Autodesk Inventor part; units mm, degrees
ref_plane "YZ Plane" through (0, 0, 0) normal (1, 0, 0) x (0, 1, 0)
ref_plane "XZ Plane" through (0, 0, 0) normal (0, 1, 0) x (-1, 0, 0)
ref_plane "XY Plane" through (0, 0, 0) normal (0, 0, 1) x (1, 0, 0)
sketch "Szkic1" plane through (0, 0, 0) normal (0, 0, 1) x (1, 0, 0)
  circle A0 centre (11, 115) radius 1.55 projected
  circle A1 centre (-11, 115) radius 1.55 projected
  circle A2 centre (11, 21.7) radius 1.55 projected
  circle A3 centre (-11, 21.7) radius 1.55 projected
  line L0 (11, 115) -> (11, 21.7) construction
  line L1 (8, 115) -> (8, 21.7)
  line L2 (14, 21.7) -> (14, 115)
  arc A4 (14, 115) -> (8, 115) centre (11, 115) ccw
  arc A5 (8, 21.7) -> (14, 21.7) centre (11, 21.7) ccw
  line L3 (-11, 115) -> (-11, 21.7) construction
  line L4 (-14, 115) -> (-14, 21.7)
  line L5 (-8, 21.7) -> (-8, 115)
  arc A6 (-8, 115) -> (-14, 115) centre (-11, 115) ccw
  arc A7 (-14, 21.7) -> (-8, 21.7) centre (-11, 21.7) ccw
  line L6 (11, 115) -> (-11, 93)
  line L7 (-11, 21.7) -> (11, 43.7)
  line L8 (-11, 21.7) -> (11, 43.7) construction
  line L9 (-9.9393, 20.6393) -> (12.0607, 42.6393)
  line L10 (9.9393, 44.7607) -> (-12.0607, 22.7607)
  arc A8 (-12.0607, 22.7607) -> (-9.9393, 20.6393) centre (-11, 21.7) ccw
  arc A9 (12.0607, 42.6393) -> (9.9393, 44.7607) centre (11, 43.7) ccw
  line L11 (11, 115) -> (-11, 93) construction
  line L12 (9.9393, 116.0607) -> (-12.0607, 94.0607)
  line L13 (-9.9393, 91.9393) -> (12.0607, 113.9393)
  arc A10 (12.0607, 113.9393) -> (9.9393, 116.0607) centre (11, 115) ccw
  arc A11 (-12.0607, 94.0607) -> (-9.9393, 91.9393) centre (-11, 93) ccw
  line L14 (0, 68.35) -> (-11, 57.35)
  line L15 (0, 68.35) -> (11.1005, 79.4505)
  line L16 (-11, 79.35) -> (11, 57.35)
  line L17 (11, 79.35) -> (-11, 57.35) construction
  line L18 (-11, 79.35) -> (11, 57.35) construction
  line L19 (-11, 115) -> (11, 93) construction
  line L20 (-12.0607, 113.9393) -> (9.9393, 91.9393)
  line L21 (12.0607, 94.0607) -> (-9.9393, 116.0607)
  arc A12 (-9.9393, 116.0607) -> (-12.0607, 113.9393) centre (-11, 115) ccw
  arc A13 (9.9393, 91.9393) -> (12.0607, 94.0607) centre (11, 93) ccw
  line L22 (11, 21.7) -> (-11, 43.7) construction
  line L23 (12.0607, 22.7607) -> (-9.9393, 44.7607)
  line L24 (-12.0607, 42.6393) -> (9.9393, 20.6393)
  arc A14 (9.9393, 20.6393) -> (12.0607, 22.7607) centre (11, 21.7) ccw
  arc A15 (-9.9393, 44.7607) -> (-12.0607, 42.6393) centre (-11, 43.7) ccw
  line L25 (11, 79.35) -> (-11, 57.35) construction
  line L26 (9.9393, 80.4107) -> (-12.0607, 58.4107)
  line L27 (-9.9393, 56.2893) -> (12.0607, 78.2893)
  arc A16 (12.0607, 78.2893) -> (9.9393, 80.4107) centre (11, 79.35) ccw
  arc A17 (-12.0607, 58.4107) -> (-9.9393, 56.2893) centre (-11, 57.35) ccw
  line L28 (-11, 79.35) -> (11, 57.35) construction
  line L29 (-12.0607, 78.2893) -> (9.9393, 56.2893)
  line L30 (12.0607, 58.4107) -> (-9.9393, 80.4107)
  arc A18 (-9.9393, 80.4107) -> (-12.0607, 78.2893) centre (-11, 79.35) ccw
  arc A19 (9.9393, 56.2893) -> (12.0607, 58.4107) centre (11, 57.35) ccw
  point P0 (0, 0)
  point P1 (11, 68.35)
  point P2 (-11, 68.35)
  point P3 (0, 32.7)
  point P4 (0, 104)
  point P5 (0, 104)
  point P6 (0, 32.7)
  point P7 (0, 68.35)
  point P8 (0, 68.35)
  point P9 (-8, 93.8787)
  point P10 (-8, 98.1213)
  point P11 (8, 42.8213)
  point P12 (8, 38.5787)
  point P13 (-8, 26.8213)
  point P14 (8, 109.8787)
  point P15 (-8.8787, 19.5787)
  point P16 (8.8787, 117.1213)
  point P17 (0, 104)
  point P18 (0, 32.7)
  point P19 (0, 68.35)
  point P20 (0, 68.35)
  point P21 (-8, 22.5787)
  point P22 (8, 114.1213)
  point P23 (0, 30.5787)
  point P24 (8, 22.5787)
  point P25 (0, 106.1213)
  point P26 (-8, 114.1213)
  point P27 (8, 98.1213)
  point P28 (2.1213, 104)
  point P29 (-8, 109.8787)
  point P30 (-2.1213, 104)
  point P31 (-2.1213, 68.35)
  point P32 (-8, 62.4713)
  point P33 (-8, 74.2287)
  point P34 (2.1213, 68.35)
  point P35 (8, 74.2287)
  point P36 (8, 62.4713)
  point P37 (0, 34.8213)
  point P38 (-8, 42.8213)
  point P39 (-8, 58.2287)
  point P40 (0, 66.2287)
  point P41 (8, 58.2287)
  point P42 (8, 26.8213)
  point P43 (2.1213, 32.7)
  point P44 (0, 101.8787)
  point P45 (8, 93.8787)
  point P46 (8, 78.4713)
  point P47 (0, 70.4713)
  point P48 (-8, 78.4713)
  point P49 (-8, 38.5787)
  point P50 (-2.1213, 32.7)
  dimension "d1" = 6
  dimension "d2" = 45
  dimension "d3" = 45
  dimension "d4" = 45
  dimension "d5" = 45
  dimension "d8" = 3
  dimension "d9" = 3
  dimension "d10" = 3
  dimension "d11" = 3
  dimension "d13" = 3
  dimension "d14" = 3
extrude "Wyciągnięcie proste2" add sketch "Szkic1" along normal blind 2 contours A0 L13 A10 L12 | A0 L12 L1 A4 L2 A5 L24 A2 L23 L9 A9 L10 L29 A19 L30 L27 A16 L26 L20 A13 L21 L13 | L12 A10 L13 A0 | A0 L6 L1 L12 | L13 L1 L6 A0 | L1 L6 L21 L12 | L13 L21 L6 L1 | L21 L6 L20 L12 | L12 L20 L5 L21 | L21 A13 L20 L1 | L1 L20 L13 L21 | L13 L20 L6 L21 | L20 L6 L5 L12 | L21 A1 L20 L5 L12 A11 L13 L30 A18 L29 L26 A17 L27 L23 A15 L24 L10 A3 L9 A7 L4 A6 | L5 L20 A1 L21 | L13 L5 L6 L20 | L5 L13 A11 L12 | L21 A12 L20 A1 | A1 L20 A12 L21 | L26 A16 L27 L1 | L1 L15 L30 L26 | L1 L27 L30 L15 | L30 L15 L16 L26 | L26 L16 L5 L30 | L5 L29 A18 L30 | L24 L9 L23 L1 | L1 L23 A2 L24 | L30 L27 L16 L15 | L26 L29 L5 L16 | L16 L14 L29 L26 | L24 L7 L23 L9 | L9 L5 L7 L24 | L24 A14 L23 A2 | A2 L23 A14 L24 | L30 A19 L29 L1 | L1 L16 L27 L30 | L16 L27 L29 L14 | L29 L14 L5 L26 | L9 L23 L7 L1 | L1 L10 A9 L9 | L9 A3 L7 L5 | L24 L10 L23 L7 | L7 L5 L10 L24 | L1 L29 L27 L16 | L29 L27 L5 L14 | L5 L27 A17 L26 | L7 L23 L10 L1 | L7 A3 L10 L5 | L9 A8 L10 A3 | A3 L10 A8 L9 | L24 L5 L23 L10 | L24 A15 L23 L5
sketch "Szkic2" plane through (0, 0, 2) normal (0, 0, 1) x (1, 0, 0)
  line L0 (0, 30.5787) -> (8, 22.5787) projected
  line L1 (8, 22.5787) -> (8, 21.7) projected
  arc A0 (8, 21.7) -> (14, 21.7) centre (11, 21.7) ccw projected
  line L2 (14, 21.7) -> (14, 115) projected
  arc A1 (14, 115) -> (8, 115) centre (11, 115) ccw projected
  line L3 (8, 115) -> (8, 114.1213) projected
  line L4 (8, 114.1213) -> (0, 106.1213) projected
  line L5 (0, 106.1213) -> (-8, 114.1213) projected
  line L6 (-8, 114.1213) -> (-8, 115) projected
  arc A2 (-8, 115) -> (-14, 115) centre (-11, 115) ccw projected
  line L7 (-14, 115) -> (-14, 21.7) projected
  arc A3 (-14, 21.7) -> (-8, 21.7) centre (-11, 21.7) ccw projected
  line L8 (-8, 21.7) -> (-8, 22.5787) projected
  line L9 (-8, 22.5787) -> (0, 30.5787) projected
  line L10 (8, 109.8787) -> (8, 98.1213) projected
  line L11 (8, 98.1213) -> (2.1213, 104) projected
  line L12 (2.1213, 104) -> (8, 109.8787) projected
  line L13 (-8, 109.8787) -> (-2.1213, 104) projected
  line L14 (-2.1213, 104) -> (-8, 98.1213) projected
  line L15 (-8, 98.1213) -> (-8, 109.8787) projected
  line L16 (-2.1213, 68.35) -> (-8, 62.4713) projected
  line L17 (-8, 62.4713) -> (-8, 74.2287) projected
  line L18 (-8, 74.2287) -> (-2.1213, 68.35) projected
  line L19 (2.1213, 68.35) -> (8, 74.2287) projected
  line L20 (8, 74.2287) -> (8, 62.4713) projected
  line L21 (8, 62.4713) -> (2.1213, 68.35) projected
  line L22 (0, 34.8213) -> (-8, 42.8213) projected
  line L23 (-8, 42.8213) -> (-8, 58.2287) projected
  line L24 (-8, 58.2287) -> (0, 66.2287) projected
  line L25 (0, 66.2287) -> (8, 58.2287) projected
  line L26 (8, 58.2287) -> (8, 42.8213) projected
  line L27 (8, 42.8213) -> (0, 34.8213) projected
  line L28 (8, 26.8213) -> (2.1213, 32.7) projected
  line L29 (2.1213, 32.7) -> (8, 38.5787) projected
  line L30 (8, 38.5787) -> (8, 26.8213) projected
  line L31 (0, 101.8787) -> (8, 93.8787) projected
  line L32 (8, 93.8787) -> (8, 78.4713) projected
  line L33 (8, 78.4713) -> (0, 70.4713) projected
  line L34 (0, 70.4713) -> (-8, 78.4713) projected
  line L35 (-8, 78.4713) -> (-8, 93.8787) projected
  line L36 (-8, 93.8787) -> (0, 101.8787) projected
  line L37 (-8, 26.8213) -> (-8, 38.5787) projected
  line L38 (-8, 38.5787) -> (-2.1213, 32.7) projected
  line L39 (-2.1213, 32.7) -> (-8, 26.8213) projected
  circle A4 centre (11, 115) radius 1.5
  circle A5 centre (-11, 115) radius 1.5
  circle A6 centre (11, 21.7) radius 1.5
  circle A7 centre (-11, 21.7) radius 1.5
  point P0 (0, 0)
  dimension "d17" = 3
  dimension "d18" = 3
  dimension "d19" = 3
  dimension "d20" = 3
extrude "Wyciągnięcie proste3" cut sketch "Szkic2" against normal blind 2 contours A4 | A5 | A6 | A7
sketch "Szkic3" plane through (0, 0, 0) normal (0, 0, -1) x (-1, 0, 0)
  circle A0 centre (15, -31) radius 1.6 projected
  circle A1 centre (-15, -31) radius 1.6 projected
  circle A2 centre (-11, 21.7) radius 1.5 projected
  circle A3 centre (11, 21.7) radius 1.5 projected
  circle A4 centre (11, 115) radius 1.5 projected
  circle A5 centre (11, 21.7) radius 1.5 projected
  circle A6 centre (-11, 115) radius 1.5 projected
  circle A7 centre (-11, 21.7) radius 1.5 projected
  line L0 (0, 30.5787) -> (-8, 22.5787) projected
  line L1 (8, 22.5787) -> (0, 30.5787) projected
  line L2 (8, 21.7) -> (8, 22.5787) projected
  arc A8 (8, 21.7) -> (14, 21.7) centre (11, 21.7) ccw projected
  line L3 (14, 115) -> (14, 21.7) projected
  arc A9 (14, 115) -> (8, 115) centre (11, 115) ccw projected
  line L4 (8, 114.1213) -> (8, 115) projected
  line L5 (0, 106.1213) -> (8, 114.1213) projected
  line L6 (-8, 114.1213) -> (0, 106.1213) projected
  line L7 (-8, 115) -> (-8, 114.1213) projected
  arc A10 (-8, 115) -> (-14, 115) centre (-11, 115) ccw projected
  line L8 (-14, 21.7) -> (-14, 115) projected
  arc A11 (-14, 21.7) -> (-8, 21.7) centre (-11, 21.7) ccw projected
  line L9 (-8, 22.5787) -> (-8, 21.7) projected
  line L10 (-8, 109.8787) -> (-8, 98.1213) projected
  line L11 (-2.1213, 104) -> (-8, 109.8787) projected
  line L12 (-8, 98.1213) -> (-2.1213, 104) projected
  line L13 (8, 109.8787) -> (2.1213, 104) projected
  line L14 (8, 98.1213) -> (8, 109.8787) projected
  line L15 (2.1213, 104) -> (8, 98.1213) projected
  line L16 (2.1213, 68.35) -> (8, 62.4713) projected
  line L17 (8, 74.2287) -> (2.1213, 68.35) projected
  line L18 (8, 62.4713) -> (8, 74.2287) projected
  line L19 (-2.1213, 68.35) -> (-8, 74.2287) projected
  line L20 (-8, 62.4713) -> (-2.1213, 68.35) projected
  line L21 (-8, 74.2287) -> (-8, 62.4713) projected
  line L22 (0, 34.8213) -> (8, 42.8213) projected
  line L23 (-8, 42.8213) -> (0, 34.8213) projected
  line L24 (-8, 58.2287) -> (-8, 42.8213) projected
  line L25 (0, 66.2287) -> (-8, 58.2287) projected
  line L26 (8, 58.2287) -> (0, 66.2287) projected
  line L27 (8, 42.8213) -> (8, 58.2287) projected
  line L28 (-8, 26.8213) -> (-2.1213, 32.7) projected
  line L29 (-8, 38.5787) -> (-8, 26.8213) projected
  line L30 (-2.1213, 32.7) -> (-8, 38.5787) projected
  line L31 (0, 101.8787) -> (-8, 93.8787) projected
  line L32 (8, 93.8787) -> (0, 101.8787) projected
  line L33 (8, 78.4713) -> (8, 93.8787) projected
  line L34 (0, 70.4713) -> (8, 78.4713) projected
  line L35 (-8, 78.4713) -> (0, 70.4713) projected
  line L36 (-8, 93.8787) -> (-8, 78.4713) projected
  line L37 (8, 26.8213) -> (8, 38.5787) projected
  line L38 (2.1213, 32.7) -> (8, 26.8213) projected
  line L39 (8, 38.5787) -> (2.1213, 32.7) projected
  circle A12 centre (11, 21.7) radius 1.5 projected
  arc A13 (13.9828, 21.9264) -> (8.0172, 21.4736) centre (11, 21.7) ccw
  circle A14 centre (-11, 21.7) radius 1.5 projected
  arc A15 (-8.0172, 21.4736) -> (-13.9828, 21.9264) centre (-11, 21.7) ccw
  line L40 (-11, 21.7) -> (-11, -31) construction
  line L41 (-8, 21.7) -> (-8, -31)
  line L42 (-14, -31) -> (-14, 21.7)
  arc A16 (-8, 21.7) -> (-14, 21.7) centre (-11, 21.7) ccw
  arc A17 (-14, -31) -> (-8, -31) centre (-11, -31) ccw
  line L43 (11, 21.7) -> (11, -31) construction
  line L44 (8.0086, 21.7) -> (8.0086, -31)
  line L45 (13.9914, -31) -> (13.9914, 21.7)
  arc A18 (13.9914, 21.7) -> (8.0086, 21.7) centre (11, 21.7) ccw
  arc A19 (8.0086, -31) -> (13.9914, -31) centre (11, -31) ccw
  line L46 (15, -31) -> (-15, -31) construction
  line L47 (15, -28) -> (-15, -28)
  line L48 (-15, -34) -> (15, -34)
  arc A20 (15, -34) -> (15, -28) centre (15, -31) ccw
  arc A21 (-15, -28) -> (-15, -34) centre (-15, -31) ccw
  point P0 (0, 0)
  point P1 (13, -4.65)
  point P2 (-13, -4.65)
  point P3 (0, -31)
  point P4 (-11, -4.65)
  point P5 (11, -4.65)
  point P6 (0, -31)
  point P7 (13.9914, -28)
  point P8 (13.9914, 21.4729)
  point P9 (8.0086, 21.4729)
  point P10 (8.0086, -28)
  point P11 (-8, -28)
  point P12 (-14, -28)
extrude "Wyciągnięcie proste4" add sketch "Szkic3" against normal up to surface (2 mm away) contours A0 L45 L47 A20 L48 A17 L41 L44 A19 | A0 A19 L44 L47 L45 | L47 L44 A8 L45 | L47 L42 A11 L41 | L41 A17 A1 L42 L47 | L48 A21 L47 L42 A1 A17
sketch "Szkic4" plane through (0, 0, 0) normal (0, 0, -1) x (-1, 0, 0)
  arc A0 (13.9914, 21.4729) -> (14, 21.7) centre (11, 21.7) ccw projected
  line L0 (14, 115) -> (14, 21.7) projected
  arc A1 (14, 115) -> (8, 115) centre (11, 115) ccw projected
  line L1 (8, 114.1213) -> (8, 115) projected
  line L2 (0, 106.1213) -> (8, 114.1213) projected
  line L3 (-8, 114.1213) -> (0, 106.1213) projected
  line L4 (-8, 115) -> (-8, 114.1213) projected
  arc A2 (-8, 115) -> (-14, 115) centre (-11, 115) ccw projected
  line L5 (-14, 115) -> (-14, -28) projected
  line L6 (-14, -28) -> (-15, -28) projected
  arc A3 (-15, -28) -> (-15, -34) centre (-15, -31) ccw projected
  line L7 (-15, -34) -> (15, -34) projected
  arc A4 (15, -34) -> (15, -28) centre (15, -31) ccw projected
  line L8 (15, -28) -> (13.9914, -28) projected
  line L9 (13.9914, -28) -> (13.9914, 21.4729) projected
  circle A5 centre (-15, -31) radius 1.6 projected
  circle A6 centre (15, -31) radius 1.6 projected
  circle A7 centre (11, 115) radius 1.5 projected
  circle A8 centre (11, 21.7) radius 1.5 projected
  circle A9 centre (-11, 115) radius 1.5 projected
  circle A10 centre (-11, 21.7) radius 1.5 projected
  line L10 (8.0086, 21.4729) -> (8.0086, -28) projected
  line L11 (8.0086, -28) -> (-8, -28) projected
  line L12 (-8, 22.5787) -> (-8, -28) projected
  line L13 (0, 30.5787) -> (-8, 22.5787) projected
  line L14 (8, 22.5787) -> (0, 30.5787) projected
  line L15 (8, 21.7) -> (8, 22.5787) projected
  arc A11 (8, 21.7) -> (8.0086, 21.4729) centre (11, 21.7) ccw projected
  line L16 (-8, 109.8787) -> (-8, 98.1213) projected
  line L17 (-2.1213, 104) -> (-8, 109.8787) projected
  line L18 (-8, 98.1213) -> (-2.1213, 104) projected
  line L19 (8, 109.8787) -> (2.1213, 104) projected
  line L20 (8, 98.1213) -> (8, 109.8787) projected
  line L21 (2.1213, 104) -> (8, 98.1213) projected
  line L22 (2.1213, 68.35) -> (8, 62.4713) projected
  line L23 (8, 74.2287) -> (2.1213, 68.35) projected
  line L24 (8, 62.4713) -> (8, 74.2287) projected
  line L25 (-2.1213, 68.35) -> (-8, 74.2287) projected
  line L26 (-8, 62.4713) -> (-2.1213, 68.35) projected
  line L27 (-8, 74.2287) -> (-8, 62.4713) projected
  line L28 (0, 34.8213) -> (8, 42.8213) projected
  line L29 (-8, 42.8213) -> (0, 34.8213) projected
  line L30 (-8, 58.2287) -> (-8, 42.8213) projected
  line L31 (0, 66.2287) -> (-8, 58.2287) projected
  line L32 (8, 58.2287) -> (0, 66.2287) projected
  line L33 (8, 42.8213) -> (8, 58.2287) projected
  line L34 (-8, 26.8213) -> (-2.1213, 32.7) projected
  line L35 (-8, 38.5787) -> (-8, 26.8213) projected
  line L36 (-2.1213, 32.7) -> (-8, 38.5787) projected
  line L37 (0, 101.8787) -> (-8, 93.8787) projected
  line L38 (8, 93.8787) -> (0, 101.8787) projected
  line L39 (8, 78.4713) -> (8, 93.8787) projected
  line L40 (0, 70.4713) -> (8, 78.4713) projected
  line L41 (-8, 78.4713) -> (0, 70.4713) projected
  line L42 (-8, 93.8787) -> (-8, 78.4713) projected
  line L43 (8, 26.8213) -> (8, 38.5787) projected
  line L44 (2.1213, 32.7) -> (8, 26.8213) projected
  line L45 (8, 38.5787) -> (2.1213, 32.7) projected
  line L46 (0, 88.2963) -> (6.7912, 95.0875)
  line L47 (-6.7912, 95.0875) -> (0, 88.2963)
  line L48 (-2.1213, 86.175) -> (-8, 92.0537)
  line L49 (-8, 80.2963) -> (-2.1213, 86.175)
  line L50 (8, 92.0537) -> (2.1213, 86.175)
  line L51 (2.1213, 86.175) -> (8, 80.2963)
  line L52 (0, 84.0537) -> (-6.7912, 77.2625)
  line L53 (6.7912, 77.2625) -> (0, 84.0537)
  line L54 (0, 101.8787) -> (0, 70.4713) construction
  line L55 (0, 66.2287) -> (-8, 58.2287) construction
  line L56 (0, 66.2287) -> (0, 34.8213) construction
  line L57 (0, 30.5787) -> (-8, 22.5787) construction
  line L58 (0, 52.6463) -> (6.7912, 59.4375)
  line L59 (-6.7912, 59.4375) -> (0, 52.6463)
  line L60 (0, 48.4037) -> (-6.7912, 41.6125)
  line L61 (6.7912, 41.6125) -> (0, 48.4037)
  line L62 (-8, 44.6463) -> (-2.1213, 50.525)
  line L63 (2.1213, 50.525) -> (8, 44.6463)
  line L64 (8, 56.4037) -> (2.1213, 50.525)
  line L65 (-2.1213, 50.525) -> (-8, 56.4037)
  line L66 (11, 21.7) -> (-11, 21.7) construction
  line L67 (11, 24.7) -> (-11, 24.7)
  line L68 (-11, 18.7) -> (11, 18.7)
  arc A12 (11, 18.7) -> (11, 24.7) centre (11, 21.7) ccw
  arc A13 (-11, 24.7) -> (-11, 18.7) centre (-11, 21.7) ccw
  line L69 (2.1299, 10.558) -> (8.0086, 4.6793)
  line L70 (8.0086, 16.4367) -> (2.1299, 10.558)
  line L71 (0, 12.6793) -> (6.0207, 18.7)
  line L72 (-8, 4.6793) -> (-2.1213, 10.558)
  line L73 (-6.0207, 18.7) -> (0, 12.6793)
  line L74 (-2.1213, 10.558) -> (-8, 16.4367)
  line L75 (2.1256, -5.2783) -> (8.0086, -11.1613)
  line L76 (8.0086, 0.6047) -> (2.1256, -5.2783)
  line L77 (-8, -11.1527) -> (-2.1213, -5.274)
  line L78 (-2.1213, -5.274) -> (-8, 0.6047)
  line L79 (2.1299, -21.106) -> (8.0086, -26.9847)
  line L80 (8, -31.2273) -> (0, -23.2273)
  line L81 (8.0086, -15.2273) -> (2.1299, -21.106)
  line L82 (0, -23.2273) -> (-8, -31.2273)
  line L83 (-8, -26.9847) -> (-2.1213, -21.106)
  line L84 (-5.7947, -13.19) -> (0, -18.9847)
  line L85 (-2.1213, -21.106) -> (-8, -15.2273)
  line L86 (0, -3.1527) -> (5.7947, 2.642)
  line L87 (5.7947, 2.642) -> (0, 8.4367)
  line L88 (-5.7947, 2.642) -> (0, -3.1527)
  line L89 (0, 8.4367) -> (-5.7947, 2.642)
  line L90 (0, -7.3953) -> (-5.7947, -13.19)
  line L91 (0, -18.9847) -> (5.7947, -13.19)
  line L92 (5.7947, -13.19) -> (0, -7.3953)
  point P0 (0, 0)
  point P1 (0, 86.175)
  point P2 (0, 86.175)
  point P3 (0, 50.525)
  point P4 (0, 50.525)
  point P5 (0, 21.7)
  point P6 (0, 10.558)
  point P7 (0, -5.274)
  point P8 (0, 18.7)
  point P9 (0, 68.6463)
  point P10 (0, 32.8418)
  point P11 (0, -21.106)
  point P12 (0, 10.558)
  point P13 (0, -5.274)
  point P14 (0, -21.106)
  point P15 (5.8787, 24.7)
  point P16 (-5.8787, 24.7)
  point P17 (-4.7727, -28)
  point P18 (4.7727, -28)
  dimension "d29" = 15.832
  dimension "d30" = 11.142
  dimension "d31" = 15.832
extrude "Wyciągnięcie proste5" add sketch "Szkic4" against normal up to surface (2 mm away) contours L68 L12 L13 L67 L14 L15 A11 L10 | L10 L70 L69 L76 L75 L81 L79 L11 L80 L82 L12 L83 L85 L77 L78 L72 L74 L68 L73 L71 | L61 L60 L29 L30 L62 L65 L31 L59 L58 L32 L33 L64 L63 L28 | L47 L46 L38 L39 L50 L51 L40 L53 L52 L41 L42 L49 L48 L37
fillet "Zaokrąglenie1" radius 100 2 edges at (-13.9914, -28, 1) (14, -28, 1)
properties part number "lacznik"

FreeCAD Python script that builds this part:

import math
import FreeCAD as App
import Part
import Sketcher
from FreeCAD import Vector


def edges_at(feature, points):
    """Names of the edges that pass closest to the given points."""
    edges = feature.Shape.Edges
    near = lambda p: min(range(len(edges)), key=lambda i: edges[i].distToShape(Part.Vertex(*p))[0])
    return sorted({f"Edge{near(p) + 1}" for p in points})


def add_polygon(sketch, points):
    """Adds a closed chain of lines whose ends are joined by coincident constraints."""
    first, n = sketch.GeometryCount, len(points)
    for a, b in zip(points, points[1:] + points[:1]):
        sketch.addGeometry(Part.LineSegment(App.Vector(*a, 0), App.Vector(*b, 0)), False)
    for i in range(n):
        sketch.addConstraint(Sketcher.Constraint("Coincident", first + i, 2, first + (i + 1) % n, 1))

doc = App.newDocument("Part")
body = doc.addObject("PartDesign::Body", "Body")

# Sketch on XY plane
sketch1 = doc.addObject("Sketcher::SketchObject", "Sketch")
body.addObject(sketch1)
sketch1.AttachmentSupport = (doc.XY_Plane, [""])
sketch1.MapMode = "FlatFace"
sketch1.addGeometry(Part.LineSegment(Vector(8, 115, 0), Vector(8, 114.1, 0)), False)  # 0
sketch1.addGeometry(Part.LineSegment(Vector(8, 114.1, 0), Vector(0, 106.1, 0)), False)  # 1
sketch1.addGeometry(Part.LineSegment(Vector(0, 106.1, 0), Vector(-8, 114.1, 0)), False)  # 2
sketch1.addGeometry(Part.LineSegment(Vector(-8, 114.1, 0), Vector(-8, 115, 0)), False)  # 3
sketch1.addGeometry(Part.ArcOfCircle(Part.Circle(Vector(-11, 115, 0), Vector(0, 0, 1), 3), math.radians(0), math.radians(180)), False)  # 4
sketch1.addGeometry(Part.LineSegment(Vector(-14, 115, 0), Vector(-14, 21.7, 0)), False)  # 5
sketch1.addGeometry(Part.ArcOfCircle(Part.Circle(Vector(-11, 21.7, 0), Vector(0, 0, 1), 3), math.radians(180), math.radians(360)), False)  # 6
sketch1.addGeometry(Part.LineSegment(Vector(-8, 21.7, 0), Vector(-8, 22.6, 0)), False)  # 7
sketch1.addGeometry(Part.LineSegment(Vector(-8, 22.6, 0), Vector(0, 30.6, 0)), False)  # 8
sketch1.addGeometry(Part.LineSegment(Vector(0, 30.6, 0), Vector(8, 22.6, 0)), False)  # 9
sketch1.addGeometry(Part.LineSegment(Vector(8, 22.6, 0), Vector(8, 21.7, 0)), False)  # 10
sketch1.addGeometry(Part.ArcOfCircle(Part.Circle(Vector(11, 21.7, 0), Vector(0, 0, 1), 3), math.radians(180), math.radians(360)), False)  # 11
sketch1.addGeometry(Part.LineSegment(Vector(14, 21.7, 0), Vector(14, 115, 0)), False)  # 12
sketch1.addGeometry(Part.ArcOfCircle(Part.Circle(Vector(11, 115, 0), Vector(0, 0, 1), 3), math.radians(0), math.radians(180)), False)  # 13
add_polygon(sketch1, [(8, 38.6), (8, 26.8), (2.1, 32.7)])  # lines 14-16
add_polygon(sketch1, [(8, 58.2), (8, 42.8), (0, 34.8), (-8, 42.8), (-8, 58.2), (0, 66.2)])  # lines 17-22
add_polygon(sketch1, [(8, 74.2), (8, 62.5), (2.1, 68.3)])  # lines 23-25
add_polygon(sketch1, [(8, 93.9), (8, 78.5), (0, 70.5), (-8, 78.5), (-8, 93.9), (0, 101.9)])  # lines 26-31
add_polygon(sketch1, [(8, 109.9), (8, 98.1), (2.1, 104)])  # lines 32-34
add_polygon(sketch1, [(-8, 109.9), (-2.1, 104), (-8, 98.1)])  # lines 35-37
add_polygon(sketch1, [(-2.1, 32.7), (-8, 26.8), (-8, 38.6)])  # lines 38-40
add_polygon(sketch1, [(-2.1, 68.3), (-8, 62.5), (-8, 74.2)])  # lines 41-43
sketch1.addConstraint([
    Sketcher.Constraint("Coincident", 0, 2, 1, 1),
    Sketcher.Constraint("Coincident", 1, 2, 2, 1),
    Sketcher.Constraint("Coincident", 2, 2, 3, 1),
    Sketcher.Constraint("Tangent", 3, 2, 4, 1),
    Sketcher.Constraint("Tangent", 4, 2, 5, 1),
    Sketcher.Constraint("Tangent", 5, 2, 6, 1),
    Sketcher.Constraint("Tangent", 6, 2, 7, 1),
    Sketcher.Constraint("Coincident", 7, 2, 8, 1),
    Sketcher.Constraint("Coincident", 8, 2, 9, 1),
    Sketcher.Constraint("Coincident", 9, 2, 10, 1),
    Sketcher.Constraint("Tangent", 10, 2, 11, 1),
    Sketcher.Constraint("Tangent", 11, 2, 12, 1),
    Sketcher.Constraint("Tangent", 12, 2, 13, 1),
    Sketcher.Constraint("Tangent", 13, 2, 0, 1),
    Sketcher.Constraint("Vertical", 0),
    Sketcher.Constraint("Vertical", 3),
    Sketcher.Constraint("Vertical", 5),
    Sketcher.Constraint("Vertical", 7),
    Sketcher.Constraint("Vertical", 10),
    Sketcher.Constraint("Vertical", 12),
    Sketcher.Constraint("Vertical", 14),
    Sketcher.Constraint("Vertical", 17),
    Sketcher.Constraint("Vertical", 20),
    Sketcher.Constraint("Vertical", 23),
    Sketcher.Constraint("Vertical", 26),
    Sketcher.Constraint("Vertical", 29),
    Sketcher.Constraint("Vertical", 32),
    Sketcher.Constraint("Vertical", 37),
    Sketcher.Constraint("Vertical", 39),
    Sketcher.Constraint("Vertical", 42),
    Sketcher.Constraint("Equal", 4, 6),
    Sketcher.Constraint("Equal", 6, 11),
    Sketcher.Constraint("Equal", 11, 13),
    Sketcher.Constraint("Symmetric", 6, 3, 11, 3, -2),
    Sketcher.Constraint("Symmetric", 17, 2, 19, 2, -2),
    Sketcher.Constraint("Symmetric", 26, 2, 28, 2, -2),
    Sketcher.Constraint("Symmetric", 33, 2, 35, 2, -2),
    Sketcher.Constraint("Symmetric", 32, 2, 36, 2, -2),
    Sketcher.Constraint("Symmetric", 14, 2, 38, 2, -2),
    Sketcher.Constraint("Symmetric", 15, 2, 40, 2, -2),
    Sketcher.Constraint("Symmetric", 23, 2, 41, 2, -2),
    Sketcher.Constraint("Symmetric", 24, 2, 43, 2, -2),
    Sketcher.Constraint("PointOnObject", 1, 2, -2),
    Sketcher.Constraint("PointOnObject", 8, 2, -2),
    Sketcher.Constraint("PointOnObject", 18, 2, -2),
    Sketcher.Constraint("PointOnObject", 21, 2, -2),
    Sketcher.Constraint("PointOnObject", 27, 2, -2),
    Sketcher.Constraint("PointOnObject", 30, 2, -2),
    Sketcher.Constraint("Perpendicular", 1, 2),
    Sketcher.Constraint("Perpendicular", 2, 8),
    Sketcher.Constraint("Perpendicular", 8, 9),
    Sketcher.Constraint("Parallel", 9, 15),
    Sketcher.Constraint("Perpendicular", 15, 16),
    Sketcher.Constraint("Parallel", 16, 18),
    Sketcher.Constraint("Perpendicular", 18, 19),
    Sketcher.Constraint("Perpendicular", 19, 21),
    Sketcher.Constraint("Perpendicular", 21, 22),
    Sketcher.Constraint("Parallel", 22, 24),
    Sketcher.Constraint("Perpendicular", 24, 25),
    Sketcher.Constraint("Parallel", 25, 27),
    Sketcher.Constraint("Perpendicular", 28, 30),
    Sketcher.Constraint("Perpendicular", 30, 31),
    Sketcher.Constraint("Parallel", 31, 33),
    Sketcher.Constraint("Perpendicular", 33, 34),
    Sketcher.Constraint("Perpendicular", 34, 35),
    Sketcher.Constraint("Perpendicular", 38, 40),
    Sketcher.Constraint("Perpendicular", 41, 43),
    Sketcher.Constraint("Horizontal", 4, 3, 13, 3),
    Sketcher.Constraint("Vertical", 13, 2, 14, 2),
    Sketcher.Constraint("Vertical", 16, 2, 17, 2),
    Sketcher.Constraint("Vertical", 22, 2, 23, 2),
    Sketcher.Constraint("Vertical", 15, 2, 24, 2),
    Sketcher.Constraint("Vertical", 25, 2, 26, 2),
    Sketcher.Constraint("Vertical", 31, 2, 32, 2),
    Sketcher.Constraint("Vertical", 24, 2, 33, 2),
    Sketcher.Constraint("Equal", 3, 7),
    Sketcher.Constraint("Equal", 20, 26),
    Sketcher.Constraint("Radius", 4, 3.0),
    Sketcher.Constraint("DistanceY", 5, 2, 5, 1, 93.3),
    Sketcher.Constraint("DistanceX", 4, 3, -1, 1, 11.0),
    Sketcher.Constraint("DistanceY", -1, 1, 4, 3, 115.0),
    Sketcher.Constraint("DistanceY", -1, 1, 33, 2, 104.0),
    Sketcher.Constraint("DistanceY", 10, 2, 15, 2, 11.0),
    Sketcher.Constraint("DistanceY", 8, 2, 16, 2, 8.0),
    Sketcher.Constraint("DistanceY", 14, 2, 17, 2, 16.0),
    Sketcher.Constraint("DistanceY", 21, 2, 25, 2, 8.0),
    Sketcher.Constraint("DistanceY", 23, 2, 26, 2, 16.0),
    Sketcher.Constraint("DistanceY", -1, 1, 24, 2, 68.35),
    Sketcher.Constraint("DistanceY", 0, 2, 0, 1, 0.8786),
])
pad1 = doc.addObject("PartDesign::Pad", "Pad")
body.addObject(pad1)
pad1.Profile = sketch1
pad1.Length = 2

# Sketch on XY plane
sketch2 = doc.addObject("Sketcher::SketchObject", "Sketch001")
body.addObject(sketch2)
sketch2.AttachmentSupport = (doc.XY_Plane, [""])
sketch2.MapMode = "FlatFace"
sketch2.AttachmentOffset = App.Placement(Vector(0, 0, 2), App.Rotation())
sketch2.addGeometry([
    Part.Circle(Vector(11, 115, 0), Vector(0, 0, 1), 1.5),
    Part.Circle(Vector(-11, 115, 0), Vector(0, 0, 1), 1.5),
    Part.Circle(Vector(11, 21.7, 0), Vector(0, 0, 1), 1.5),
    Part.Circle(Vector(-11, 21.7, 0), Vector(0, 0, 1), 1.5),
], False)
sketch2.addConstraint([
    Sketcher.Constraint("Equal", 0, 1),
    Sketcher.Constraint("Equal", 1, 2),
    Sketcher.Constraint("Equal", 2, 3),
    Sketcher.Constraint("Symmetric", 0, 3, 1, 3, -2),
    Sketcher.Constraint("Symmetric", 2, 3, 3, 3, -2),
    Sketcher.Constraint("Vertical", 0, 3, 2, 3),
    Sketcher.Constraint("Diameter", 0, 3.0),
    Sketcher.Constraint("DistanceX", -1, 1, 0, 3, 11.0),
    Sketcher.Constraint("DistanceY", -1, 1, 0, 3, 115.0),
    Sketcher.Constraint("DistanceY", -1, 1, 2, 3, 21.7),
])
pocket1 = doc.addObject("PartDesign::Pocket", "Pocket")
body.addObject(pocket1)
pocket1.Profile = sketch2
pocket1.Length = 2

# Sketch on XY plane
sketch3 = doc.addObject("Sketcher::SketchObject", "Sketch002")
body.addObject(sketch3)
sketch3.AttachmentSupport = (doc.XY_Plane, [""])
sketch3.MapMode = "FlatFace"
sketch3.addGeometry([
    Part.LineSegment(Vector(-15, -28, 0), Vector(-14, -28, 0)),  # 0
    Part.LineSegment(Vector(-14, -28, 0), Vector(-14, 21.5, 0)),  # 1
    Part.ArcOfCircle(Part.Circle(Vector(-11, 21.7, 0), Vector(0, 0, 1), 3), math.radians(-176), math.radians(-4)),  # 2
    Part.LineSegment(Vector(-8, 21.5, 0), Vector(-8, -28, 0)),  # 3
    Part.LineSegment(Vector(-8, -28, 0), Vector(8, -28, 0)),  # 4
    Part.LineSegment(Vector(8, -28, 0), Vector(8, 21.7, 0)),  # 5
    Part.ArcOfCircle(Part.Circle(Vector(11, 21.7, 0), Vector(0, 0, 1), 3), math.radians(180), math.radians(360)),  # 6
    Part.LineSegment(Vector(14, 21.7, 0), Vector(14, -28, 0)),  # 7
    Part.LineSegment(Vector(14, -28, 0), Vector(15, -28, 0)),  # 8
    Part.ArcOfCircle(Part.Circle(Vector(15, -31, 0), Vector(0, 0, 1), 3), math.radians(-90), math.radians(90)),  # 9
    Part.LineSegment(Vector(15, -34, 0), Vector(-15, -34, 0)),  # 10
    Part.ArcOfCircle(Part.Circle(Vector(-15, -31, 0), Vector(0, 0, 1), 3), math.radians(90), math.radians(270)),  # 11
    Part.Circle(Vector(-15, -31, 0), Vector(0, 0, 1), 1.6),  # 12
    Part.Circle(Vector(15, -31, 0), Vector(0, 0, 1), 1.6),  # 13
], False)
sketch3.addConstraint([
    Sketcher.Constraint("Coincident", 0, 2, 1, 1),
    Sketcher.Constraint("Coincident", 1, 2, 2, 1),
    Sketcher.Constraint("Coincident", 2, 2, 3, 1),
    Sketcher.Constraint("Coincident", 3, 2, 4, 1),
    Sketcher.Constraint("Coincident", 4, 2, 5, 1),
    Sketcher.Constraint("Tangent", 5, 2, 6, 1),
    Sketcher.Constraint("Tangent", 6, 2, 7, 1),
    Sketcher.Constraint("Coincident", 7, 2, 8, 1),
    Sketcher.Constraint("Tangent", 8, 2, 9, 2),
    Sketcher.Constraint("Tangent", 9, 1, 10, 1),
    Sketcher.Constraint("Tangent", 10, 2, 11, 2),
    Sketcher.Constraint("Tangent", 11, 1, 0, 1),
    Sketcher.Constraint("Horizontal", 0),
    Sketcher.Constraint("Vertical", 1),
    Sketcher.Constraint("Vertical", 3),
    Sketcher.Constraint("Horizontal", 4),
    Sketcher.Constraint("Vertical", 5),
    Sketcher.Constraint("Vertical", 7),
    Sketcher.Constraint("Horizontal", 8),
    Sketcher.Constraint("Horizontal", 10),
    Sketcher.Constraint("Coincident", 12, 3, 11, 3),
    Sketcher.Constraint("Coincident", 13, 3, 9, 3),
    Sketcher.Constraint("Equal", 2, 6),
    Sketcher.Constraint("Equal", 6, 9),
    Sketcher.Constraint("Equal", 9, 11),
    Sketcher.Constraint("Equal", 12, 13),
    Sketcher.Constraint("Symmetric", 2, 3, 6, 3, -2),
    Sketcher.Constraint("Horizontal", 1, 2, 2, 2),
    Sketcher.Constraint("Horizontal", 0, 2, 3, 2),
    Sketcher.Constraint("Radius", 2, 3.0),
    Sketcher.Constraint("Diameter", 12, 3.2),
    Sketcher.Constraint("DistanceX", 8, 1, 8, 2, 1.0),
    Sketcher.Constraint("DistanceX", 10, 2, 10, 1, 30.0),
    Sketcher.Constraint("DistanceY", 5, 1, 5, 2, 49.7),
    Sketcher.Constraint("DistanceX", 2, 3, -1, 1, 11.0),
    Sketcher.Constraint("DistanceY", 9, 3, -1, 1, 31.0),
    Sketcher.Constraint("DistanceY", 1, 1, 1, 2, 49.473),
])
pad2 = doc.addObject("PartDesign::Pad", "Pad001")
body.addObject(pad2)
pad2.Profile = sketch3
pad2.Length = 2

# Sketch on XY plane
sketch4 = doc.addObject("Sketcher::SketchObject", "Sketch003")
body.addObject(sketch4)
sketch4.AttachmentSupport = (doc.XY_Plane, [""])
sketch4.MapMode = "FlatFace"
sketch4.addGeometry(Part.LineSegment(Vector(8, 22.58, 0), Vector(8, 16.44, 0)), False)  # 0
sketch4.addGeometry(Part.LineSegment(Vector(8, 16.44, 0), Vector(2.12, 10.56, 0)), False)  # 1
sketch4.addGeometry(Part.LineSegment(Vector(2.12, 10.56, 0), Vector(8, 4.68, 0)), False)  # 2
sketch4.addGeometry(Part.LineSegment(Vector(8, 4.68, 0), Vector(8, 0.6, 0)), False)  # 3
sketch4.addGeometry(Part.LineSegment(Vector(8, 0.6, 0), Vector(2.12, -5.27, 0)), False)  # 4
sketch4.addGeometry(Part.LineSegment(Vector(2.12, -5.27, 0), Vector(8, -11.15, 0)), False)  # 5
sketch4.addGeometry(Part.LineSegment(Vector(8, -11.15, 0), Vector(8, -15.23, 0)), False)  # 6
sketch4.addGeometry(Part.LineSegment(Vector(8, -15.23, 0), Vector(2.12, -21.11, 0)), False)  # 7
sketch4.addGeometry(Part.LineSegment(Vector(2.12, -21.11, 0), Vector(8, -26.98, 0)), False)  # 8
sketch4.addGeometry(Part.LineSegment(Vector(8, -26.98, 0), Vector(8, -28, 0)), False)  # 9
sketch4.addGeometry(Part.LineSegment(Vector(8, -28, 0), Vector(4.77, -28, 0)), False)  # 10
sketch4.addGeometry(Part.LineSegment(Vector(4.77, -28, 0), Vector(0, -23.23, 0)), False)  # 11
sketch4.addGeometry(Part.LineSegment(Vector(0, -23.23, 0), Vector(-4.77, -28, 0)), False)  # 12
sketch4.addGeometry(Part.LineSegment(Vector(-4.77, -28, 0), Vector(-8.01, -28, 0)), False)  # 13
sketch4.addGeometry(Part.LineSegment(Vector(-8.01, -28, 0), Vector(-8.01, -26.98, 0)), False)  # 14
sketch4.addGeometry(Part.LineSegment(Vector(-8.01, -26.98, 0), Vector(-2.13, -21.11, 0)), False)  # 15
sketch4.addGeometry(Part.LineSegment(Vector(-2.13, -21.11, 0), Vector(-8.01, -15.23, 0)), False)  # 16
sketch4.addGeometry(Part.LineSegment(Vector(-8.01, -15.23, 0), Vector(-8.01, -11.16, 0)), False)  # 17
sketch4.addGeometry(Part.LineSegment(Vector(-8.01, -11.16, 0), Vector(-2.13, -5.28, 0)), False)  # 18
sketch4.addGeometry(Part.LineSegment(Vector(-2.13, -5.28, 0), Vector(-8.01, 0.6, 0)), False)  # 19
sketch4.addGeometry(Part.LineSegment(Vector(-8.01, 0.6, 0), Vector(-8.01, 4.68, 0)), False)  # 20
sketch4.addGeometry(Part.LineSegment(Vector(-8.01, 4.68, 0), Vector(-2.13, 10.56, 0)), False)  # 21
sketch4.addGeometry(Part.LineSegment(Vector(-2.13, 10.56, 0), Vector(-8.01, 16.44, 0)), False)  # 22
sketch4.addGeometry(Part.LineSegment(Vector(-8.01, 16.44, 0), Vector(-8.01, 21.47, 0)), False)  # 23
sketch4.addGeometry(Part.ArcOfCircle(Part.Circle(Vector(-11.01, 21.7, 0), Vector(0, 0, 1), 3.01), math.radians(-4.34), math.radians(0)), False)  # 24
sketch4.addGeometry(Part.LineSegment(Vector(-8, 21.7, 0), Vector(-8, 22.58, 0)), False)  # 25
sketch4.addGeometry(Part.LineSegment(Vector(-8, 22.58, 0), Vector(-5.88, 24.7, 0)), False)  # 26
sketch4.addGeometry(Part.LineSegment(Vector(-5.88, 24.7, 0), Vector(5.88, 24.7, 0)), False)  # 27
sketch4.addGeometry(Part.LineSegment(Vector(5.88, 24.7, 0), Vector(8, 22.58, 0)), False)  # 28
add_polygon(sketch4, [(6.02, 18.7), (-6.02, 18.7), (0, 12.68)])  # lines 29-31
add_polygon(sketch4, [(5.79, 2.64), (0, 8.44), (-5.79, 2.64), (0, -3.15)])  # lines 32-35
add_polygon(sketch4, [(0, -18.98), (5.79, -13.19), (0, -7.4), (-5.79, -13.19)])  # lines 36-39
add_polygon(sketch4, [(0, 48.4), (-6.79, 41.61), (-8, 42.82), (-8, 44.65), (-2.12, 50.52), (-8, 56.4), (-8, 58.23), (-6.79, 59.44), (0, 52.65), (6.79, 59.44), (8, 58.23), (8, 56.4), (2.12, 50.52), (8, 44.65), (8, 42.82), (6.79, 41.61)])  # lines 40-55
add_polygon(sketch4, [(0, 88.3), (6.79, 95.09), (8, 93.88), (8, 92.05), (2.12, 86.17), (8, 80.3), (8, 78.47), (6.79, 77.26), (0, 84.05), (-6.79, 77.26), (-8, 78.47), (-8, 80.3), (-2.12, 86.17), (-8, 92.05), (-8, 93.88), (-6.79, 95.09)])  # lines 56-71
sketch4.addConstraint([
    Sketcher.Constraint("Coincident", 0, 2, 1, 1),
    Sketcher.Constraint("Coincident", 1, 2, 2, 1),
    Sketcher.Constraint("Coincident", 2, 2, 3, 1),
    Sketcher.Constraint("Coincident", 3, 2, 4, 1),
    Sketcher.Constraint("Coincident", 4, 2, 5, 1),
    Sketcher.Constraint("Coincident", 5, 2, 6, 1),
    Sketcher.Constraint("Coincident", 6, 2, 7, 1),
    Sketcher.Constraint("Coincident", 7, 2, 8, 1),
    Sketcher.Constraint("Coincident", 8, 2, 9, 1),
    Sketcher.Constraint("Coincident", 9, 2, 10, 1),
    Sketcher.Constraint("Coincident", 10, 2, 11, 1),
    Sketcher.Constraint("Coincident", 11, 2, 12, 1),
    Sketcher.Constraint("Coincident", 12, 2, 13, 1),
    Sketcher.Constraint("Coincident", 13, 2, 14, 1),
    Sketcher.Constraint("Coincident", 14, 2, 15, 1),
    Sketcher.Constraint("Coincident", 15, 2, 16, 1),
    Sketcher.Constraint("Coincident", 16, 2, 17, 1),
    Sketcher.Constraint("Coincident", 17, 2, 18, 1),
    Sketcher.Constraint("Coincident", 18, 2, 19, 1),
    Sketcher.Constraint("Coincident", 19, 2, 20, 1),
    Sketcher.Constraint("Coincident", 20, 2, 21, 1),
    Sketcher.Constraint("Coincident", 21, 2, 22, 1),
    Sketcher.Constraint("Coincident", 22, 2, 23, 1),
    Sketcher.Constraint("Coincident", 23, 2, 24, 1),
    Sketcher.Constraint("Tangent", 24, 2, 25, 1),
    Sketcher.Constraint("Coincident", 25, 2, 26, 1),
    Sketcher.Constraint("Coincident", 26, 2, 27, 1),
    Sketcher.Constraint("Coincident", 27, 2, 28, 1),
    Sketcher.Constraint("Coincident", 28, 2, 0, 1),
    Sketcher.Constraint("Vertical", 0),
    Sketcher.Constraint("Vertical", 3),
    Sketcher.Constraint("Vertical", 6),
    Sketcher.Constraint("Vertical", 9),
    Sketcher.Constraint("Horizontal", 10),
    Sketcher.Constraint("Horizontal", 13),
    Sketcher.Constraint("Vertical", 14),
    Sketcher.Constraint("Vertical", 17),
    Sketcher.Constraint("Vertical", 20),
    Sketcher.Constraint("Vertical", 23),
    Sketcher.Constraint("Vertical", 25),
    Sketcher.Constraint("Horizontal", 27),
    Sketcher.Constraint("Horizontal", 29),
    Sketcher.Constraint("Vertical", 42),
    Sketcher.Constraint("Vertical", 45),
    Sketcher.Constraint("Vertical", 50),
    Sketcher.Constraint("Vertical", 53),
    Sketcher.Constraint("Vertical", 58),
    Sketcher.Constraint("Vertical", 61),
    Sketcher.Constraint("Vertical", 66),
    Sketcher.Constraint("Vertical", 69),
    Sketcher.Constraint("Symmetric", 10, 2, 12, 2, -2),
    Sketcher.Constraint("Symmetric", 25, 2, 28, 2, -2),
    Sketcher.Constraint("Symmetric", 33, 2, 35, 2, -2),
    Sketcher.Constraint("Symmetric", 36, 2, 38, 2, -2),
    Sketcher.Constraint("Symmetric", 46, 2, 48, 2, -2),
    Sketcher.Constraint("Symmetric", 45, 2, 49, 2, -2),
    Sketcher.Constraint("Symmetric", 43, 2, 51, 2, -2),
    Sketcher.Constraint("Symmetric", 42, 2, 52, 2, -2),
    Sketcher.Constraint("Symmetric", 40, 2, 54, 2, -2),
    Sketcher.Constraint("Symmetric", 62, 2, 64, 2, -2),
    Sketcher.Constraint("Symmetric", 61, 2, 65, 2, -2),
    Sketcher.Constraint("Symmetric", 59, 2, 67, 2, -2),
    Sketcher.Constraint("Symmetric", 58, 2, 68, 2, -2),
    Sketcher.Constraint("Symmetric", 56, 2, 70, 2, -2),
    Sketcher.Constraint("PointOnObject", 11, 2, -2),
    Sketcher.Constraint("PointOnObject", 30, 2, -2),
    Sketcher.Constraint("PointOnObject", 32, 2, -2),
    Sketcher.Constraint("PointOnObject", 34, 2, -2),
    Sketcher.Constraint("PointOnObject", 37, 2, -2),
    Sketcher.Constraint("PointOnObject", 39, 2, -2),
    Sketcher.Constraint("PointOnObject", 47, 2, -2),
    Sketcher.Constraint("PointOnObject", 55, 2, -2),
    Sketcher.Constraint("PointOnObject", 63, 2, -2),
    Sketcher.Constraint("PointOnObject", 71, 2, -2),
    Sketcher.Constraint("Perpendicular", 1, 2),
    Sketcher.Constraint("Perpendicular", 2, 4),
    Sketcher.Constraint("Perpendicular", 4, 5),
    Sketcher.Constraint("Perpendicular", 5, 7),
    Sketcher.Constraint("Perpendicular", 7, 8),
    Sketcher.Constraint("Parallel", 8, 11),
    Sketcher.Constraint("Perpendicular", 11, 12),
    Sketcher.Constraint("Parallel", 12, 15),
    Sketcher.Constraint("Perpendicular", 15, 16),
    Sketcher.Constraint("Perpendicular", 16, 18),
    Sketcher.Constraint("Perpendicular", 18, 19),
    Sketcher.Constraint("Perpendicular", 19, 21),
    Sketcher.Constraint("Perpendicular", 21, 22),
    Sketcher.Constraint("Perpendicular", 22, 26),
    Sketcher.Constraint("Perpendicular", 26, 28),
    Sketcher.Constraint("Parallel", 28, 30),
    Sketcher.Constraint("Perpendicular", 30, 31),
    Sketcher.Constraint("Perpendicular", 31, 32),
    Sketcher.Constraint("Perpendicular", 33, 34),
    Sketcher.Constraint("Parallel", 35, 36),
    Sketcher.Constraint("Perpendicular", 36, 37),
    Sketcher.Constraint("Perpendicular", 39, 40),
    Sketcher.Constraint("Perpendicular", 40, 41),
    Sketcher.Constraint("Perpendicular", 41, 43),
    Sketcher.Constraint("Perpendicular", 43, 44),
    Sketcher.Constraint("Perpendicular", 44, 46),
    Sketcher.Constraint("Perpendicular", 46, 47),
    Sketcher.Constraint("Perpendicular", 49, 51),
    Sketcher.Constraint("Perpendicular", 52, 54),
    Sketcher.Constraint("Perpendicular", 55, 56),
    Sketcher.Constraint("Perpendicular", 56, 57),
    Sketcher.Constraint("Perpendicular", 57, 59),
    Sketcher.Constraint("Perpendicular", 59, 60),
    Sketcher.Constraint("Perpendicular", 60, 62),
    Sketcher.Constraint("Perpendicular", 62, 63),
    Sketcher.Constraint("Perpendicular", 65, 67),
    Sketcher.Constraint("Perpendicular", 68, 70),
    Sketcher.Constraint("Horizontal", 8, 2, 14, 2),
    Sketcher.Constraint("Horizontal", 7, 2, 15, 2),
    Sketcher.Constraint("Horizontal", 6, 2, 16, 2),
    Sketcher.Constraint("Horizontal", 3, 2, 19, 2),
    Sketcher.Constraint("Horizontal", 2, 2, 20, 2),
    Sketcher.Constraint("Horizontal", 1, 2, 21, 2),
    Sketcher.Constraint("Horizontal", 0, 2, 22, 2),
    Sketcher.Constraint("Vertical", 0, 2, 2, 2),
    Sketcher.Constraint("Vertical", 1, 2, 4, 2),
    Sketcher.Constraint("Vertical", 3, 2, 5, 2),
    Sketcher.Constraint("Vertical", 4, 2, 7, 2),
    Sketcher.Constraint("Vertical", 6, 2, 8, 2),
    Sketcher.Constraint("Vertical", 17, 2, 19, 2),
    Sketcher.Constraint("Vertical", 35, 2, 36, 2),
    Sketcher.Constraint("Vertical", 25, 2, 41, 2),
    Sketcher.Constraint("Vertical", 42, 2, 44, 2),
    Sketcher.Constraint("Vertical", 40, 2, 46, 2),
    Sketcher.Constraint("Vertical", 7, 2, 51, 2),
    Sketcher.Constraint("Vertical", 54, 2, 56, 2),
    Sketcher.Constraint("Vertical", 53, 2, 57, 2),
    Sketcher.Constraint("Vertical", 51, 2, 59, 2),
    Sketcher.Constraint("Vertical", 58, 2, 60, 2),
    Sketcher.Constraint("Vertical", 56, 2, 62, 2),
    Sketcher.Constraint("Equal", 3, 6),
    Sketcher.Constraint("Equal", 42, 45),
    Sketcher.Constraint("Equal", 53, 58),
    Sketcher.Constraint("Equal", 58, 61),
    Sketcher.Constraint("Distance", 26, 3.0),
    Sketcher.Constraint("DistanceX", -1, 1, 0, 2, 8.0),
    Sketcher.Constraint("DistanceY", 9, 2, -1, 1, 28.0),
    Sketcher.Constraint("DistanceY", -1, 1, 24, 3, 21.7),
    Sketcher.Constraint("DistanceY", -1, 1, 26, 2, 24.7),
    Sketcher.Constraint("DistanceY", -1, 1, 29, 2, 18.7),
    Sketcher.Constraint("Radius", 24, 3.0056),
    Sketcher.Constraint("DistanceX", 13, 2, 13, 1, 3.236),
    Sketcher.Constraint("DistanceY", 0, 2, 0, 1, 6.142),
    Sketcher.Constraint("DistanceY", 17, 1, 17, 2, 4.066),
    Sketcher.Constraint("DistanceY", 42, 1, 42, 2, 1.825),
    Sketcher.Constraint("DistanceX", 15, 2, -1, 1, 2.13),
    Sketcher.Constraint("DistanceY", 36, 2, -1, 1, 13.19),
    Sketcher.Constraint("Distance", 32, 8.195),
    Sketcher.Constraint("DistanceX", 10, 2, 10, 1, 3.2273),
    Sketcher.Constraint("DistanceX", 29, 2, 29, 1, 12.0414),
    Sketcher.Constraint("DistanceY", 3, 2, 3, 1, 4.0746),
    Sketcher.Constraint("DistanceY", -1, 1, 33, 2, 2.642),
    Sketcher.Constraint("DistanceY", -1, 1, 43, 2, 50.525),
    Sketcher.Constraint("DistanceY", -1, 1, 59, 2, 86.175),
    Sketcher.Constraint("Distance", 40, 9.6042),
])
pad3 = doc.addObject("PartDesign::Pad", "Pad002")
body.addObject(pad3)
pad3.Profile = sketch4
pad3.Length = 2
doc.recompute()

fillet = doc.addObject("PartDesign::Fillet", "Fillet")
body.addObject(fillet)
fillet.Base = (pad3, edges_at(pad3, [(-13.991, -28, 1), (14, -28, 1)]))
fillet.Radius = 100

doc.recompute()
